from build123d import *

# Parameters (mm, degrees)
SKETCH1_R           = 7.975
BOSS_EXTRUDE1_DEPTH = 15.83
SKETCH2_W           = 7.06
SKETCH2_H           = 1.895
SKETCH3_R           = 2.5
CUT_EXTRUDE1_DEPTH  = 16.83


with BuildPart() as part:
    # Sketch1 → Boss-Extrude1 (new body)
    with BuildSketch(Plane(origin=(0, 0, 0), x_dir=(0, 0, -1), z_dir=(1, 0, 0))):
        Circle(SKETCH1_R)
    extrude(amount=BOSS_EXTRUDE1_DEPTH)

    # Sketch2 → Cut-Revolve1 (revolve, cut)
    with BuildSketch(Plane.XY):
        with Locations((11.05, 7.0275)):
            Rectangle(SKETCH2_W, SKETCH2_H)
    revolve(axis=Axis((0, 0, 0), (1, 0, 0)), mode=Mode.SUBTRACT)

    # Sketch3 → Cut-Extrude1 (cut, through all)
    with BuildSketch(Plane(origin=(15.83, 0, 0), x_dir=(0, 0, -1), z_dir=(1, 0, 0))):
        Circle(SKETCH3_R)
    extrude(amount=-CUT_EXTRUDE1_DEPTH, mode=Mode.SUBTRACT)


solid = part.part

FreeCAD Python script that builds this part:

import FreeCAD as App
import Part
import Sketcher
from FreeCAD import Vector
Q = App.Units.Quantity

doc = App.newDocument("Part")
body = doc.addObject("PartDesign::Body", "Body")

sketch1 = body.newObject("Sketcher::SketchObject", "Sketch")
sketch1.AttachmentSupport = (doc.getObject("YZ_Plane"), [""])
sketch1.MapMode = "FlatFace"
sketch1.addGeometry(Part.Circle(Vector(0, 0, 0), Vector(0, 0, 1), 8), False)
sketch1.addConstraint(Sketcher.Constraint("Coincident", 0, 3, -1, 1))
sketch1.addConstraint(Sketcher.Constraint("Diameter", 0, Q("15.95 mm")))
pad1 = body.newObject("PartDesign::Pad", "Pad")
pad1.Profile = sketch1
pad1.Length = 15.83

sketch2 = body.newObject("Sketcher::SketchObject", "Sketch001")
sketch2.AttachmentSupport = (doc.getObject("XY_Plane"), [""])
sketch2.MapMode = "FlatFace"
sketch2.addGeometry(Part.LineSegment(Vector(7.5, 8, 0), Vector(7.5, 6.1, 0)), False)
sketch2.addGeometry(Part.LineSegment(Vector(7.5, 6.1, 0), Vector(14.6, 6.1, 0)), False)
sketch2.addGeometry(Part.LineSegment(Vector(14.6, 6.1, 0), Vector(14.6, 8, 0)), False)
sketch2.addGeometry(Part.LineSegment(Vector(14.6, 8, 0), Vector(7.5, 8, 0)), False)
sketch2.addConstraint(Sketcher.Constraint("Coincident", 0, 2, 1, 1))
sketch2.addConstraint(Sketcher.Constraint("Coincident", 1, 2, 2, 1))
sketch2.addConstraint(Sketcher.Constraint("Coincident", 2, 2, 3, 1))
sketch2.addConstraint(Sketcher.Constraint("Coincident", 3, 2, 0, 1))
sketch2.addConstraint(Sketcher.Constraint("Vertical", 0))
sketch2.addConstraint(Sketcher.Constraint("Horizontal", 1))
sketch2.addConstraint(Sketcher.Constraint("Vertical", 2))
sketch2.addConstraint(Sketcher.Constraint("Horizontal", 3))
sketch2.addConstraint(Sketcher.Constraint("DistanceX", 1, 1, 1, 2, Q("7.06 mm")))
sketch2.addConstraint(Sketcher.Constraint("DistanceY", 0, 2, 0, 1, Q("1.895 mm")))
sketch2.addConstraint(Sketcher.Constraint("DistanceX", -1, 1, 0, 2, Q("7.52 mm")))
sketch2.addConstraint(Sketcher.Constraint("DistanceY", -1, 1, 0, 2, Q("6.08 mm")))
groove = body.newObject("PartDesign::Groove", "Groove")
groove.Profile = sketch2
groove.ReferenceAxis = (sketch2, ["H_Axis"])
groove.Angle = 360

sketch3 = body.newObject("Sketcher::SketchObject", "Sketch002")
sketch3.AttachmentSupport = (doc.getObject("YZ_Plane"), [""])
sketch3.MapMode = "FlatFace"
sketch3.AttachmentOffset = App.Placement(Vector(0, 0, 15.83), App.Rotation())
sketch3.addGeometry(Part.Circle(Vector(0, 0, 0), Vector(0, 0, 1), 2.5), False)
sketch3.addConstraint(Sketcher.Constraint("Coincident", 0, 3, -1, 1))
sketch3.addConstraint(Sketcher.Constraint("Diameter", 0, Q("5 mm")))
pocket1 = body.newObject("PartDesign::Pocket", "Pocket")
pocket1.Profile = sketch3
pocket1.Type = "ThroughAll"

doc.recompute()
